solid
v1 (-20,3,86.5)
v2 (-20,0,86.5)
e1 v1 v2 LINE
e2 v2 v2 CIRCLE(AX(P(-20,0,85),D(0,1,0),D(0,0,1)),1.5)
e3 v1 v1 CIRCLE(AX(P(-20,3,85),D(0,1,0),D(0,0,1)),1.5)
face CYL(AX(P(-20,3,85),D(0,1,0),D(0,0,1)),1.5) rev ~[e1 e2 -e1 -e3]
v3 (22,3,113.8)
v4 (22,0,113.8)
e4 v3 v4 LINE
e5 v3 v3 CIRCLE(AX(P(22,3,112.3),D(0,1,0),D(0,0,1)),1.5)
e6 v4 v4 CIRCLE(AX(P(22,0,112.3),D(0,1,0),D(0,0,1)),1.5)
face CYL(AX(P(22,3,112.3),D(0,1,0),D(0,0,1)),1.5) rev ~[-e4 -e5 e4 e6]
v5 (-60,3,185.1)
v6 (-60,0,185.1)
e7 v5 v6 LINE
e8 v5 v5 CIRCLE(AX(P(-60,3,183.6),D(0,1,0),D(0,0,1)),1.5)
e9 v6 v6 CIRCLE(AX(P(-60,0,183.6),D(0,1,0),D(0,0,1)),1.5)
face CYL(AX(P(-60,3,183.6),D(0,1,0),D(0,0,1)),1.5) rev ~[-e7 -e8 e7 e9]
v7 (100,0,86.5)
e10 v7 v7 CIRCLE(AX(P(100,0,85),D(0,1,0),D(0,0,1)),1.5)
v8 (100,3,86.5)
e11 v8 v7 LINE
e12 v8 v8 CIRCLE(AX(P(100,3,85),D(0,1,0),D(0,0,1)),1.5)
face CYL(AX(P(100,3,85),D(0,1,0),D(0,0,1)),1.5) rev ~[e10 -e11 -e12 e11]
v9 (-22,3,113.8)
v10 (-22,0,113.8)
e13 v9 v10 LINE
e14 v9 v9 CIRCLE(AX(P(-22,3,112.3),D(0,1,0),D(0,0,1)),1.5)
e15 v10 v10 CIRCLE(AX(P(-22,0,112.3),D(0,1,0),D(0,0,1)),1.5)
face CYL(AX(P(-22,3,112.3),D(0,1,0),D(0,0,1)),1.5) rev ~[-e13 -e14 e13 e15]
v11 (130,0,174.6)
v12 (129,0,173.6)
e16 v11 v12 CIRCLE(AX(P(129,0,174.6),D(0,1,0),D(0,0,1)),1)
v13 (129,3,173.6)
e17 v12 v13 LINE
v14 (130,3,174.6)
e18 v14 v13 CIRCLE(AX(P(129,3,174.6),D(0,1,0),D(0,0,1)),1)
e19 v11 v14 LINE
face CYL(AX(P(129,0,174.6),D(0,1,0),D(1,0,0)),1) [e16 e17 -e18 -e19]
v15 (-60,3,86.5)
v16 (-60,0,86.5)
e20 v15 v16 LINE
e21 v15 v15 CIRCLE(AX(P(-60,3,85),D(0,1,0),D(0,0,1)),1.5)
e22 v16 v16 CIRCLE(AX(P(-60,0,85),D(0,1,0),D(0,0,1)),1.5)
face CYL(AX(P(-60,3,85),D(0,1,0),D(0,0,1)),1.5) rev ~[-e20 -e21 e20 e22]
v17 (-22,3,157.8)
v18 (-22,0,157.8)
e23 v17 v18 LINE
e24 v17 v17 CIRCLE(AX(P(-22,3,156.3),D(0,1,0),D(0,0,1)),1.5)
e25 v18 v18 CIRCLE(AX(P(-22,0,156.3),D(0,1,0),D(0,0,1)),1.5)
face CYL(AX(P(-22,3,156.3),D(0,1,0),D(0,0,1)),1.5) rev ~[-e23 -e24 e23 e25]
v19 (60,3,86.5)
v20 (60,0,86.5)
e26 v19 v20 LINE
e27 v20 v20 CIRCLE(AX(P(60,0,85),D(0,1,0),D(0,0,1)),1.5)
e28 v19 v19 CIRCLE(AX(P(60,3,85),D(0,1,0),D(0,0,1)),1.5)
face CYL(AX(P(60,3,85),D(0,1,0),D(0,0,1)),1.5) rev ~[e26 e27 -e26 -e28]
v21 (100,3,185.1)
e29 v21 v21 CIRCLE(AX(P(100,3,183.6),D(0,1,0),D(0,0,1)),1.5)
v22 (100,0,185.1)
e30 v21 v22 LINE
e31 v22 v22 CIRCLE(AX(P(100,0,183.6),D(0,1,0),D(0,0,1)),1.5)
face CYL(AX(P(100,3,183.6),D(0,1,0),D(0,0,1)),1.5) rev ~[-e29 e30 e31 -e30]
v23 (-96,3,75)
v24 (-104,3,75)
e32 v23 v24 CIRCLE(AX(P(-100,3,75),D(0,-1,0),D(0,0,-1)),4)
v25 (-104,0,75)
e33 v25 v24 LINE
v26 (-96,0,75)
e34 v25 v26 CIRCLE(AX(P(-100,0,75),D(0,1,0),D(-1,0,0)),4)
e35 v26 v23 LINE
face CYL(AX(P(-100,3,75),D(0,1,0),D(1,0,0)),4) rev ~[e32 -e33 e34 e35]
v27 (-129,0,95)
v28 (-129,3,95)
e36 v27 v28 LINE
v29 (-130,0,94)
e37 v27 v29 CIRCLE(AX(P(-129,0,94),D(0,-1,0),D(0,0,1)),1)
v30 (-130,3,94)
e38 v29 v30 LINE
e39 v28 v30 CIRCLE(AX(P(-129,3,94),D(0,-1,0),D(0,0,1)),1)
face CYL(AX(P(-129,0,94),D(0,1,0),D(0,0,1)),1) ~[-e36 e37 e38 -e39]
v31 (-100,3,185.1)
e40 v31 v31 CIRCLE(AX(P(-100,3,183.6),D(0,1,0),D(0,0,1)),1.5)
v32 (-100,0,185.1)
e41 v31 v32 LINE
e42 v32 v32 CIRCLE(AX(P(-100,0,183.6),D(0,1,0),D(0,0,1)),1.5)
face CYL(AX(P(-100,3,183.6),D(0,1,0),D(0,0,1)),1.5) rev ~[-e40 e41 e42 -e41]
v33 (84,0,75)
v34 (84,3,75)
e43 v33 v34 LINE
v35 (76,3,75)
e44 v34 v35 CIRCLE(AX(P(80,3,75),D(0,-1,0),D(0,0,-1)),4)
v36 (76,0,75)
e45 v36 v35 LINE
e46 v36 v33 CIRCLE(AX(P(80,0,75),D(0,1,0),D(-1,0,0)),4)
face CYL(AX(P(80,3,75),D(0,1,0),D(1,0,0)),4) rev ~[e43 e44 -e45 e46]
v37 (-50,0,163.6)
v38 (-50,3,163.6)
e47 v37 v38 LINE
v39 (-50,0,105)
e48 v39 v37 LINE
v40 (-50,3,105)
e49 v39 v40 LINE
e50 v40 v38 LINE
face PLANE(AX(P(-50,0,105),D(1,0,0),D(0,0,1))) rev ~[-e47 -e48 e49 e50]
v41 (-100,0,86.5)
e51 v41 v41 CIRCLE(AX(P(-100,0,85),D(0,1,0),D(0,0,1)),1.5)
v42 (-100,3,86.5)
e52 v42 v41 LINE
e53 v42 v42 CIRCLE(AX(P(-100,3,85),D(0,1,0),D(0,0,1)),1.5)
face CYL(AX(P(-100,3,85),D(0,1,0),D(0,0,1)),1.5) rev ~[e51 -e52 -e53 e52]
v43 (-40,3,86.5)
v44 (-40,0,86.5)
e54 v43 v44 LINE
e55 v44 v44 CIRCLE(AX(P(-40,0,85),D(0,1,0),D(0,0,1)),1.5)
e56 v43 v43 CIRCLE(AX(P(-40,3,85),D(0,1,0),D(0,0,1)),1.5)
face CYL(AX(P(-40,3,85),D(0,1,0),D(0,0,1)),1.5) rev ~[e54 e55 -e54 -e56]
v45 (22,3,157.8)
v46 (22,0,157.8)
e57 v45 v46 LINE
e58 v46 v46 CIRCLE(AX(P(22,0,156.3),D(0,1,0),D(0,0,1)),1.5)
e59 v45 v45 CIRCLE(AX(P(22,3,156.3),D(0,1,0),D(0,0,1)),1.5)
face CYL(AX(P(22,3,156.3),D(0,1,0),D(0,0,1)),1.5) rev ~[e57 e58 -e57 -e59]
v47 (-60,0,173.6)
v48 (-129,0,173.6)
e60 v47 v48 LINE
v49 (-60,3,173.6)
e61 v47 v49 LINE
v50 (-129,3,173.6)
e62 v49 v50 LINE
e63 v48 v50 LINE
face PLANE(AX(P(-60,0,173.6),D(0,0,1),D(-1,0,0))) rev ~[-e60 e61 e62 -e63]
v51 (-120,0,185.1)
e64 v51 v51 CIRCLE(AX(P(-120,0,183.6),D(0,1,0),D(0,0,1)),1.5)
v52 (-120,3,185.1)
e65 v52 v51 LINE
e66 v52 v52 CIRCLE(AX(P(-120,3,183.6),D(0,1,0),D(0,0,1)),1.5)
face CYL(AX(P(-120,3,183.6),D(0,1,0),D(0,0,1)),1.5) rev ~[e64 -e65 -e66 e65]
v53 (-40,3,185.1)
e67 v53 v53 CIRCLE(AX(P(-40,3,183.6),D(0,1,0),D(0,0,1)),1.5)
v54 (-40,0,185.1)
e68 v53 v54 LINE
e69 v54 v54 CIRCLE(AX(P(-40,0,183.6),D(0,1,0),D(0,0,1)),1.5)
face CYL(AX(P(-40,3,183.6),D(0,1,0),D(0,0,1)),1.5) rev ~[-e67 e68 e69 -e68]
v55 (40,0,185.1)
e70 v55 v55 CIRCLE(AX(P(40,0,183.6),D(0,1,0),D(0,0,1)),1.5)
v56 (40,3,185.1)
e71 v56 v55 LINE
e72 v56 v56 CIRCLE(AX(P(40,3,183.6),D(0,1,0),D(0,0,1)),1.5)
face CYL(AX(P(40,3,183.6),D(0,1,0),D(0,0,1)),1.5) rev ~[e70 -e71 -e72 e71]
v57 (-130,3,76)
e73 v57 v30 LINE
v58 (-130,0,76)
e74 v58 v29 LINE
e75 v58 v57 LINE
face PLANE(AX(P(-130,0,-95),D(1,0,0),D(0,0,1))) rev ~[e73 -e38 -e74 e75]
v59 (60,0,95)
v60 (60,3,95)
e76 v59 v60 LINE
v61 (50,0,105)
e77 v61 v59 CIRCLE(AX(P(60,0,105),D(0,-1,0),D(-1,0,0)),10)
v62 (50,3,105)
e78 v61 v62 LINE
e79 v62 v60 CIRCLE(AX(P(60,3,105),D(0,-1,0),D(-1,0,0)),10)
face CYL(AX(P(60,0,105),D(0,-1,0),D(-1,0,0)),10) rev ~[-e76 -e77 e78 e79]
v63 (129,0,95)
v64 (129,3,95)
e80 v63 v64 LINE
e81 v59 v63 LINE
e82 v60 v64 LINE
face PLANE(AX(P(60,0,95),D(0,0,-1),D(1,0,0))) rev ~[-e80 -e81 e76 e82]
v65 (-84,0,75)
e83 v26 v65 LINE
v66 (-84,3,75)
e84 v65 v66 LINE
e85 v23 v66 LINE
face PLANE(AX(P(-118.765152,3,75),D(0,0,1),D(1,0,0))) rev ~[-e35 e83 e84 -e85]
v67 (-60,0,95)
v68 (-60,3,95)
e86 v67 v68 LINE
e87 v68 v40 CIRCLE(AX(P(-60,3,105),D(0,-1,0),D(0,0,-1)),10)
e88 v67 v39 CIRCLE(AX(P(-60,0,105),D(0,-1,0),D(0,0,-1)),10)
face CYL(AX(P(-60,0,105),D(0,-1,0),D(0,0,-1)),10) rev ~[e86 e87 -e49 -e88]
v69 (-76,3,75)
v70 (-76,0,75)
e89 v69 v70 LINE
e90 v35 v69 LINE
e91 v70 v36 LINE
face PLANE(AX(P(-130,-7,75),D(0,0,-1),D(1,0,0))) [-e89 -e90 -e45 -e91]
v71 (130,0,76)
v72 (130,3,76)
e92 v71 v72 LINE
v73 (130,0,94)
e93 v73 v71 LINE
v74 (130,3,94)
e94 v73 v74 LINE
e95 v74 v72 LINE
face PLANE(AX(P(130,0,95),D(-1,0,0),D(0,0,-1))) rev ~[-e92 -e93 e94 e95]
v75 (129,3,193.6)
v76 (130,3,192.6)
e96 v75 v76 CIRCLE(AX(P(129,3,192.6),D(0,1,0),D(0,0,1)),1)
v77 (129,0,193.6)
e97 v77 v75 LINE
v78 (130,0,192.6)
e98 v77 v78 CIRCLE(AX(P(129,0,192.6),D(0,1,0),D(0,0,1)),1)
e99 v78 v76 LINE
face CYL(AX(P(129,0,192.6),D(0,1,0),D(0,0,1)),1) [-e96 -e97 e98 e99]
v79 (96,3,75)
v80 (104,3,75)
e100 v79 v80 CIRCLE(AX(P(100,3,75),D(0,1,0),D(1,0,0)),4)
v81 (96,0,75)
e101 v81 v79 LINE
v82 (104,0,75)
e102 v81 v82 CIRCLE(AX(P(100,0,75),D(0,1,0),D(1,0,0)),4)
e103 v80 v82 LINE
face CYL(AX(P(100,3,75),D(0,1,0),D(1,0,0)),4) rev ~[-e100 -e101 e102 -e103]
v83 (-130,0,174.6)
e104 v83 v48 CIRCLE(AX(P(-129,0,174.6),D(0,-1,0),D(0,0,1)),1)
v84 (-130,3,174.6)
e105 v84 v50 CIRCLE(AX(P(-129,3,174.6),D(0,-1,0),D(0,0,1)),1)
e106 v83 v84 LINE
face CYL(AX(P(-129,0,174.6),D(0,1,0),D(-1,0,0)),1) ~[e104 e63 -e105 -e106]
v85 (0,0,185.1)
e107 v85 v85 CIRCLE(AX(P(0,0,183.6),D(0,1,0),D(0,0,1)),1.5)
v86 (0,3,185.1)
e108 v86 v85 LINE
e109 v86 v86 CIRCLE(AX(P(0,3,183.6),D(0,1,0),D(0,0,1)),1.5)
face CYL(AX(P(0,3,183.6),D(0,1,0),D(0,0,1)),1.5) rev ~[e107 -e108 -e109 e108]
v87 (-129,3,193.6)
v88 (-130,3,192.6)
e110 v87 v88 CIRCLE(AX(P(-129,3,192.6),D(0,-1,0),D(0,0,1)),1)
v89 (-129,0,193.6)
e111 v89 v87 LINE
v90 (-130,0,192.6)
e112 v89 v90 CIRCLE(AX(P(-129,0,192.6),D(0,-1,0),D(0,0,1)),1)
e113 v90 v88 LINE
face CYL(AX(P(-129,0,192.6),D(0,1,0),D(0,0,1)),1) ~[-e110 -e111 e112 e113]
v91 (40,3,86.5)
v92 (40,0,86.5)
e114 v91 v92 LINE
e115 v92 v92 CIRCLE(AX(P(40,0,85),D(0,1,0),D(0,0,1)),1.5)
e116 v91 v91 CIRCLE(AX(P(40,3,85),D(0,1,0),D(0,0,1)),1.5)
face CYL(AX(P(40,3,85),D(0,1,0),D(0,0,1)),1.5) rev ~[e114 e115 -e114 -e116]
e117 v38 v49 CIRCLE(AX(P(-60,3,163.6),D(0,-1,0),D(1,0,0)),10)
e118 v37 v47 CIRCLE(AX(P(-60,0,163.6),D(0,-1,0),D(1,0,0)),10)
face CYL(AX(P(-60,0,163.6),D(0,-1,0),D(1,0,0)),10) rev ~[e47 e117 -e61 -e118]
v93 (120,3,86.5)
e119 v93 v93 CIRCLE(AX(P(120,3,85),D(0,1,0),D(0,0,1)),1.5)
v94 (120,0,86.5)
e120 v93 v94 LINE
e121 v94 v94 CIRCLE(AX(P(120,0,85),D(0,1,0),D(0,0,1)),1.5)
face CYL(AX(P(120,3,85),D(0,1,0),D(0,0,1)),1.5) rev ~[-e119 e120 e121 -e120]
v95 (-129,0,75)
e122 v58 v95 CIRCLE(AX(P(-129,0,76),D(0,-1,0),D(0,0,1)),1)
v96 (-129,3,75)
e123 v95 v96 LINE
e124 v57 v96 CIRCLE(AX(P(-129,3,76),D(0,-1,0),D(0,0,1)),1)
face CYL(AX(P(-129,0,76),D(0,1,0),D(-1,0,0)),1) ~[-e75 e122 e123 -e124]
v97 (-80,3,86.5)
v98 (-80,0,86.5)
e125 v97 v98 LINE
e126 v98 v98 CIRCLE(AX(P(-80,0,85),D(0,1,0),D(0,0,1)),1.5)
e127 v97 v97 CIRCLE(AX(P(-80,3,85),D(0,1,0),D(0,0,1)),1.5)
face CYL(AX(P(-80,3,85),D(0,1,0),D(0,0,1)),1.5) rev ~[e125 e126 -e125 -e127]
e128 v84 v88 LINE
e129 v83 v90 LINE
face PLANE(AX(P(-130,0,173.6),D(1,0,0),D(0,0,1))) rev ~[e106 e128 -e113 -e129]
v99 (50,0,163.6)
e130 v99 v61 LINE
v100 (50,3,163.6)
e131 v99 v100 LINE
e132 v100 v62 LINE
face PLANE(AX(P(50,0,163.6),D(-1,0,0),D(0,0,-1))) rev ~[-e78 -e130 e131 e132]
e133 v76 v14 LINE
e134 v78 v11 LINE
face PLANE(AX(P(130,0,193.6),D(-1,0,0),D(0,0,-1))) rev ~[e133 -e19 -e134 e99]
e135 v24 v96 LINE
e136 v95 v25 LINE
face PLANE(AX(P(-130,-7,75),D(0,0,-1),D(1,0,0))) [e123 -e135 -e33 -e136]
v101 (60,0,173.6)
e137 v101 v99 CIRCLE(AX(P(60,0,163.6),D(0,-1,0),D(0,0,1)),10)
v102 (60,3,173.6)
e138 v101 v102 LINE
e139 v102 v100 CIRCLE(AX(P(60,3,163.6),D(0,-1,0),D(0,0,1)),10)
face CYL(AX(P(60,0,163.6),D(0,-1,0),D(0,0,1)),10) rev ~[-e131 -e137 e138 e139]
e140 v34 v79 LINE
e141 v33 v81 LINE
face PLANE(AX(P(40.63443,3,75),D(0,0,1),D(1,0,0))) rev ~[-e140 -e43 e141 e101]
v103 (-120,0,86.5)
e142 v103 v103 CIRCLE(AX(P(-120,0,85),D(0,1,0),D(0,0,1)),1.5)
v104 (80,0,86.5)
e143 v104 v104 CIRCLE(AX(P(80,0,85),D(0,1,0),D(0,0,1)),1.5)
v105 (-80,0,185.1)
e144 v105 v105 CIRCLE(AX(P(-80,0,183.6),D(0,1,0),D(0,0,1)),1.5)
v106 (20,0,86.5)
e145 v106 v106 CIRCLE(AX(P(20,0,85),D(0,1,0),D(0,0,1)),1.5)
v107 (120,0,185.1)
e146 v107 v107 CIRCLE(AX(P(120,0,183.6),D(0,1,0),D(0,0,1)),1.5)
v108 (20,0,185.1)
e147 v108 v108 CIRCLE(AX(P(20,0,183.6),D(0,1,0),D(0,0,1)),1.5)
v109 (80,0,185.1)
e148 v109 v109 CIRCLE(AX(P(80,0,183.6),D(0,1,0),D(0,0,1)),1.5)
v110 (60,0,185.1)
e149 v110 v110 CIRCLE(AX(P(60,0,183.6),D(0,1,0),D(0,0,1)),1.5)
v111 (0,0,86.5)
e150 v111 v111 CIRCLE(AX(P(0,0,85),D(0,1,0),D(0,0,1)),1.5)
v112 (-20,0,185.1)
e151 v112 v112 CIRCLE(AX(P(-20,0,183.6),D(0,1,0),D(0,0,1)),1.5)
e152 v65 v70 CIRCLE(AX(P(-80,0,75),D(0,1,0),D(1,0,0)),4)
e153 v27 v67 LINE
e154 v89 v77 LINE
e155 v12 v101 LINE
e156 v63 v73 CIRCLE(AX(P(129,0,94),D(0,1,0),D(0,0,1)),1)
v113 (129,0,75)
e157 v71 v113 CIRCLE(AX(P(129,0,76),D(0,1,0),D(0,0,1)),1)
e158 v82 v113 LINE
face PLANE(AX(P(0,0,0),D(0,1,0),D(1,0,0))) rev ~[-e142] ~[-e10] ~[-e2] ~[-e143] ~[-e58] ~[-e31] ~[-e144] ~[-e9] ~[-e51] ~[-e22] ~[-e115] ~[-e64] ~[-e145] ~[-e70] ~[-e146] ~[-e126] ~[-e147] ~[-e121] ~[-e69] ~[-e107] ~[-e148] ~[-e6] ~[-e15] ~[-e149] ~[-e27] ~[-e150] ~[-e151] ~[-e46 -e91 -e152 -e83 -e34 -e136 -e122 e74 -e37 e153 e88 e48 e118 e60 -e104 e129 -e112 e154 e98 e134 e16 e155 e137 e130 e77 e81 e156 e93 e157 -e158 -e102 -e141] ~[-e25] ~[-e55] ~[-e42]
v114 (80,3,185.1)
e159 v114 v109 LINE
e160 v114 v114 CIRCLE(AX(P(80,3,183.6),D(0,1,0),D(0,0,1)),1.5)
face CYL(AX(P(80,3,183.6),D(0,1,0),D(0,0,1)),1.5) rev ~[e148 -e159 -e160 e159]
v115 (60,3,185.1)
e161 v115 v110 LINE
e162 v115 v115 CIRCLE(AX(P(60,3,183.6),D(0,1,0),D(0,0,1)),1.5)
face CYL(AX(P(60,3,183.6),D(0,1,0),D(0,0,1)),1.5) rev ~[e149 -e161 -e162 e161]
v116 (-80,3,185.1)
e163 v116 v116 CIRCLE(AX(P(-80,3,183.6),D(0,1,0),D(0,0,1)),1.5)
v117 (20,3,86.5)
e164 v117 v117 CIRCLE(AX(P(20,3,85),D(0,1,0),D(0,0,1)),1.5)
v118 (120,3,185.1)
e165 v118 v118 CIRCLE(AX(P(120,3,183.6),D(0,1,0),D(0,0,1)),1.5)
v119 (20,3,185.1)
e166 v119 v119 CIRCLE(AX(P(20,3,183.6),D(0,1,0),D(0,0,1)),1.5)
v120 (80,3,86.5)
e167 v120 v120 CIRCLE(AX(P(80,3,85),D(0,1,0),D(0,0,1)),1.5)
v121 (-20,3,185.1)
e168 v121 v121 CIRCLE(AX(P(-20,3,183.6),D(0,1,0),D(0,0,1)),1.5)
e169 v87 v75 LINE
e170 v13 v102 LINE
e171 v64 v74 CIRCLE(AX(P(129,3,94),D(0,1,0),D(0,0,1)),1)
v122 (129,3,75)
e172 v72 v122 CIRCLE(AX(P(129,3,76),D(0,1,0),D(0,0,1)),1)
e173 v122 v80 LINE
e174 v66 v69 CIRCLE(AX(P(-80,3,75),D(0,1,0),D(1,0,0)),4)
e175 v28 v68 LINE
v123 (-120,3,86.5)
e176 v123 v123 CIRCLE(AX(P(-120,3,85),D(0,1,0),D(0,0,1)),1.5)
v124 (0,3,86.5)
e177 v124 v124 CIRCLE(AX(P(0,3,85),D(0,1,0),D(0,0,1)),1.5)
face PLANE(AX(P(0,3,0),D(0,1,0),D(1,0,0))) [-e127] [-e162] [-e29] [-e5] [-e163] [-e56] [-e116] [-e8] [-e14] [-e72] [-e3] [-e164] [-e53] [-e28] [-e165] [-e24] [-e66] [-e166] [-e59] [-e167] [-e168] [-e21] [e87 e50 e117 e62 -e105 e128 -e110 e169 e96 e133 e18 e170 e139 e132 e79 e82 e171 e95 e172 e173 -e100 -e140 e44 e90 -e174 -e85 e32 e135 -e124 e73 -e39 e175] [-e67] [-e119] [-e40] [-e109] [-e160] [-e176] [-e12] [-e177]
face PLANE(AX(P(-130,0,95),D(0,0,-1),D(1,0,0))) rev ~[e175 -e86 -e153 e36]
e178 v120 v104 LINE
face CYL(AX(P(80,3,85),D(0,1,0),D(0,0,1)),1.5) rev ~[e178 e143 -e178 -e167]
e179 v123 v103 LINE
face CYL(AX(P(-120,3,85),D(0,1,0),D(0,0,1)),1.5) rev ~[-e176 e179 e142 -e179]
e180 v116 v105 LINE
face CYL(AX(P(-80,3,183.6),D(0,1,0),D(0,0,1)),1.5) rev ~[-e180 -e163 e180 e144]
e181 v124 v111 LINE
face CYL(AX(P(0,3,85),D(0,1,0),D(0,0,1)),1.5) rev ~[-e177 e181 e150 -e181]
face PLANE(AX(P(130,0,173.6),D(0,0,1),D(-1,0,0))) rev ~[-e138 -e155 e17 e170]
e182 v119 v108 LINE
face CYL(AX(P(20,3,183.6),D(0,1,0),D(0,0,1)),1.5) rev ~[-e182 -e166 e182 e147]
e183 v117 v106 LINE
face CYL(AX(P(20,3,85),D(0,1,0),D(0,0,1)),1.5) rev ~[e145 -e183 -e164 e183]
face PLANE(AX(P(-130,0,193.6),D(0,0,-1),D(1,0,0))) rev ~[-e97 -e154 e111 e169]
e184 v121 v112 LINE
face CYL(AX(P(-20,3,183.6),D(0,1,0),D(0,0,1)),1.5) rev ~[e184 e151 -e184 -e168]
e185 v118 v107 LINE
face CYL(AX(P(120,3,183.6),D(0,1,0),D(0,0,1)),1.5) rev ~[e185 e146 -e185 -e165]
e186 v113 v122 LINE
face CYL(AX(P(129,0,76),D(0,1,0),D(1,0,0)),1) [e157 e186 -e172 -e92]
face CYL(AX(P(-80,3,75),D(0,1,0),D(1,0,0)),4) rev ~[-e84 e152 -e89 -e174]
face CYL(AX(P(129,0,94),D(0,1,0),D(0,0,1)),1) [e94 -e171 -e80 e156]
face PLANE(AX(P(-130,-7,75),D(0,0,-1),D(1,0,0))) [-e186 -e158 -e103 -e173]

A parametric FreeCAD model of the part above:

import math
import FreeCAD as App
import Part
import Sketcher

V = App.Vector
Q = App.Units.Quantity


def edges_at(feature, points):
    """Names of the edges that pass closest to the given points."""
    edges = feature.Shape.Edges
    near = lambda p: min(range(len(edges)), key=lambda i: edges[i].distToShape(Part.Vertex(*p))[0])
    return sorted({f"Edge{near(p) + 1}" for p in points})

doc = App.newDocument("Part")
body = doc.addObject("PartDesign::Body", "Body")

# Sketch on XZ plane
sketch1 = body.newObject("Sketcher::SketchObject", "Sketch")
sketch1.AttachmentSupport = (doc.getObject("XZ_Plane"), [""])
sketch1.MapMode = "FlatFace"
sketch1.addGeometry([
    Part.LineSegment(V(-130, 193.6, 0), V(130, 193.6, 0)),  # 0
    Part.LineSegment(V(130, 193.6, 0), V(130, 173.6, 0)),  # 1
    Part.LineSegment(V(130, 173.6, 0), V(60, 173.6, 0)),  # 2
    Part.ArcOfCircle(Part.Circle(V(60, 163.6, 0), V(0, 0, 1), 10), math.radians(90), math.radians(180)),  # 3
    Part.LineSegment(V(50, 163.6, 0), V(50, 105, 0)),  # 4
    Part.ArcOfCircle(Part.Circle(V(60, 105, 0), V(0, 0, 1), 10), math.radians(180), math.radians(270)),  # 5
    Part.LineSegment(V(60, 95, 0), V(130, 95, 0)),  # 6
    Part.LineSegment(V(130, 95, 0), V(130, -95, 0)),  # 7
    Part.LineSegment(V(130, -95, 0), V(60, -95, 0)),  # 8
    Part.ArcOfCircle(Part.Circle(V(60, -105, 0), V(0, 0, 1), 10), math.radians(90), math.radians(180)),  # 9
    Part.LineSegment(V(50, -105, 0), V(50, -163.6, 0)),  # 10
    Part.ArcOfCircle(Part.Circle(V(60, -163.6, 0), V(0, 0, 1), 10), math.radians(180), math.radians(270)),  # 11
    Part.LineSegment(V(60, -173.6, 0), V(130, -173.6, 0)),  # 12
    Part.LineSegment(V(130, -173.6, 0), V(130, -193.6, 0)),  # 13
    Part.LineSegment(V(130, -193.6, 0), V(-130, -193.6, 0)),  # 14
    Part.LineSegment(V(-130, -193.6, 0), V(-130, -173.6, 0)),  # 15
    Part.LineSegment(V(-130, -173.6, 0), V(-60, -173.6, 0)),  # 16
    Part.ArcOfCircle(Part.Circle(V(-60, -163.6, 0), V(0, 0, 1), 10), math.radians(-90), math.radians(0)),  # 17
    Part.LineSegment(V(-50, -163.6, 0), V(-50, -105, 0)),  # 18
    Part.ArcOfCircle(Part.Circle(V(-60, -105, 0), V(0, 0, 1), 10), math.radians(0), math.radians(90)),  # 19
    Part.LineSegment(V(-60, -95, 0), V(-130, -95, 0)),  # 20
    Part.LineSegment(V(-130, -95, 0), V(-130, 95, 0)),  # 21
    Part.LineSegment(V(-130, 95, 0), V(-60, 95, 0)),  # 22
    Part.ArcOfCircle(Part.Circle(V(-60, 105, 0), V(0, 0, 1), 10), math.radians(-90), math.radians(0)),  # 23
    Part.LineSegment(V(-50, 105, 0), V(-50, 163.6, 0)),  # 24
    Part.ArcOfCircle(Part.Circle(V(-60, 163.6, 0), V(0, 0, 1), 10), math.radians(0), math.radians(90)),  # 25
    Part.LineSegment(V(-60, 173.6, 0), V(-130, 173.6, 0)),  # 26
    Part.LineSegment(V(-130, 173.6, 0), V(-130, 193.6, 0)),  # 27
], False)
sketch1.addConstraint([
    Sketcher.Constraint("Coincident", 0, 2, 1, 1),
    Sketcher.Constraint("Coincident", 1, 2, 2, 1),
    Sketcher.Constraint("Tangent", 2, 2, 3, 1),
    Sketcher.Constraint("Tangent", 3, 2, 4, 1),
    Sketcher.Constraint("Tangent", 4, 2, 5, 1),
    Sketcher.Constraint("Tangent", 5, 2, 6, 1),
    Sketcher.Constraint("Coincident", 6, 2, 7, 1),
    Sketcher.Constraint("Coincident", 7, 2, 8, 1),
    Sketcher.Constraint("Tangent", 8, 2, 9, 1),
    Sketcher.Constraint("Tangent", 9, 2, 10, 1),
    Sketcher.Constraint("Tangent", 10, 2, 11, 1),
    Sketcher.Constraint("Tangent", 11, 2, 12, 1),
    Sketcher.Constraint("Coincident", 12, 2, 13, 1),
    Sketcher.Constraint("Coincident", 13, 2, 14, 1),
    Sketcher.Constraint("Coincident", 14, 2, 15, 1),
    Sketcher.Constraint("Coincident", 15, 2, 16, 1),
    Sketcher.Constraint("Tangent", 16, 2, 17, 1),
    Sketcher.Constraint("Tangent", 17, 2, 18, 1),
    Sketcher.Constraint("Tangent", 18, 2, 19, 1),
    Sketcher.Constraint("Tangent", 19, 2, 20, 1),
    Sketcher.Constraint("Coincident", 20, 2, 21, 1),
    Sketcher.Constraint("Coincident", 21, 2, 22, 1),
    Sketcher.Constraint("Tangent", 22, 2, 23, 1),
    Sketcher.Constraint("Tangent", 23, 2, 24, 1),
    Sketcher.Constraint("Tangent", 24, 2, 25, 1),
    Sketcher.Constraint("Tangent", 25, 2, 26, 1),
    Sketcher.Constraint("Coincident", 26, 2, 27, 1),
    Sketcher.Constraint("Coincident", 27, 2, 0, 1),
    Sketcher.Constraint("Horizontal", 0),
    Sketcher.Constraint("Vertical", 1),
    Sketcher.Constraint("Horizontal", 2),
    Sketcher.Constraint("Vertical", 4),
    Sketcher.Constraint("Horizontal", 6),
    Sketcher.Constraint("Vertical", 7),
    Sketcher.Constraint("Horizontal", 8),
    Sketcher.Constraint("Vertical", 10),
    Sketcher.Constraint("Horizontal", 12),
    Sketcher.Constraint("Vertical", 13),
    Sketcher.Constraint("Horizontal", 14),
    Sketcher.Constraint("Vertical", 15),
    Sketcher.Constraint("Horizontal", 16),
    Sketcher.Constraint("Vertical", 18),
    Sketcher.Constraint("Horizontal", 20),
    Sketcher.Constraint("Vertical", 21),
    Sketcher.Constraint("Horizontal", 22),
    Sketcher.Constraint("Vertical", 24),
    Sketcher.Constraint("Horizontal", 26),
    Sketcher.Constraint("Vertical", 27),
    Sketcher.Constraint("Equal", 3, 5),
    Sketcher.Constraint("Equal", 5, 9),
    Sketcher.Constraint("Equal", 9, 11),
    Sketcher.Constraint("Equal", 11, 17),
    Sketcher.Constraint("Equal", 17, 19),
    Sketcher.Constraint("Equal", 19, 23),
    Sketcher.Constraint("Equal", 23, 25),
    Sketcher.Constraint("Symmetric", 3, 3, 17, 3, -1, 1),
    Sketcher.Constraint("Symmetric", 9, 3, 23, 3, -1, 1),
    Sketcher.Constraint("Symmetric", 0, 2, 14, 2, -1, 1),
    Sketcher.Constraint("Symmetric", 6, 2, 20, 2, -1, 1),
    Sketcher.Constraint("Symmetric", 12, 2, 26, 2, -1, 1),
    Sketcher.Constraint("Symmetric", 11, 3, 17, 3, -2),
    Sketcher.Constraint("Horizontal", 9, 3, 19, 3),
    Sketcher.Constraint("Vertical", 1, 2, 6, 2),
    Sketcher.Constraint("Vertical", 7, 2, 12, 2),
    Sketcher.Constraint("Radius", 3, Q("10 mm")),
    Sketcher.Constraint("DistanceX", 0, 1, 0, 2, Q("260 mm")),
    Sketcher.Constraint("DistanceX", 2, 2, 2, 1, Q("70 mm")),
    Sketcher.Constraint("DistanceY", 1, 2, 1, 1, Q("20 mm")),
    Sketcher.Constraint("DistanceY", 7, 2, 7, 1, Q("190 mm")),
    Sketcher.Constraint("DistanceY", 4, 2, 4, 1, Q("58.6 mm")),
])
pad1 = body.newObject("PartDesign::Pad", "Pad")
pad1.Profile = sketch1
pad1.Length = 3
pad1.Reversed = True

# Sketch on XZ plane
sketch2 = body.newObject("Sketcher::SketchObject", "Sketch001")
sketch2.AttachmentSupport = (doc.getObject("XZ_Plane"), [""])
sketch2.MapMode = "FlatFace"
sketch2.AttachmentOffset = App.Placement(V(0, 0, 7), App.Rotation())
sketch2.addGeometry([
    Part.LineSegment(V(-130, -95, 0), V(-130, 75, 0)),  # 0
    Part.LineSegment(V(-130, 75, 0), V(130, 75, 0)),  # 1
    Part.LineSegment(V(130, 75, 0), V(130, -95, 0)),  # 2
    Part.LineSegment(V(130, -95, 0), V(60, -95, 0)),  # 3
    Part.ArcOfCircle(Part.Circle(V(60, -105, 0), V(0, 0, 1), 10), math.radians(90), math.radians(180)),  # 4
    Part.LineSegment(V(50, -105, 0), V(50, -163.6, 0)),  # 5
    Part.ArcOfCircle(Part.Circle(V(60, -163.6, 0), V(0, 0, 1), 10), math.radians(180), math.radians(270)),  # 6
    Part.LineSegment(V(60, -173.6, 0), V(130, -173.6, 0)),  # 7
    Part.LineSegment(V(130, -173.6, 0), V(130, -193.6, 0)),  # 8
    Part.LineSegment(V(130, -193.6, 0), V(-130, -193.6, 0)),  # 9
    Part.LineSegment(V(-130, -193.6, 0), V(-130, -173.6, 0)),  # 10
    Part.LineSegment(V(-130, -173.6, 0), V(-60, -173.6, 0)),  # 11
    Part.ArcOfCircle(Part.Circle(V(-60, -163.6, 0), V(0, 0, 1), 10), math.radians(-90), math.radians(0)),  # 12
    Part.LineSegment(V(-50, -163.6, 0), V(-50, -105, 0)),  # 13
    Part.ArcOfCircle(Part.Circle(V(-60, -105, 0), V(0, 0, 1), 10), math.radians(0), math.radians(90)),  # 14
    Part.LineSegment(V(-60, -95, 0), V(-130, -95, 0)),  # 15
], False)
sketch2.addConstraint([
    Sketcher.Constraint("Coincident", 0, 2, 1, 1),
    Sketcher.Constraint("Coincident", 1, 2, 2, 1),
    Sketcher.Constraint("Coincident", 2, 2, 3, 1),
    Sketcher.Constraint("Tangent", 3, 2, 4, 1),
    Sketcher.Constraint("Tangent", 4, 2, 5, 1),
    Sketcher.Constraint("Tangent", 5, 2, 6, 1),
    Sketcher.Constraint("Tangent", 6, 2, 7, 1),
    Sketcher.Constraint("Coincident", 7, 2, 8, 1),
    Sketcher.Constraint("Coincident", 8, 2, 9, 1),
    Sketcher.Constraint("Coincident", 9, 2, 10, 1),
    Sketcher.Constraint("Coincident", 10, 2, 11, 1),
    Sketcher.Constraint("Tangent", 11, 2, 12, 1),
    Sketcher.Constraint("Tangent", 12, 2, 13, 1),
    Sketcher.Constraint("Tangent", 13, 2, 14, 1),
    Sketcher.Constraint("Tangent", 14, 2, 15, 1),
    Sketcher.Constraint("Coincident", 15, 2, 0, 1),
    Sketcher.Constraint("Vertical", 0),
    Sketcher.Constraint("Horizontal", 1),
    Sketcher.Constraint("Vertical", 2),
    Sketcher.Constraint("Horizontal", 3),
    Sketcher.Constraint("Vertical", 5),
    Sketcher.Constraint("Horizontal", 7),
    Sketcher.Constraint("Vertical", 8),
    Sketcher.Constraint("Horizontal", 9),
    Sketcher.Constraint("Vertical", 10),
    Sketcher.Constraint("Horizontal", 11),
    Sketcher.Constraint("Vertical", 13),
    Sketcher.Constraint("Horizontal", 15),
    Sketcher.Constraint("Equal", 4, 6),
    Sketcher.Constraint("Equal", 6, 12),
    Sketcher.Constraint("Equal", 12, 14),
    Sketcher.Constraint("Symmetric", 6, 3, 12, 3, -2),
    Sketcher.Constraint("Symmetric", 2, 2, 15, 2, -2),
    Sketcher.Constraint("Vertical", 2, 2, 7, 2),
    Sketcher.Constraint("Vertical", 0, 2, 9, 2),
    Sketcher.Constraint("Radius", 4, Q("10 mm")),
    Sketcher.Constraint("DistanceX", 1, 1, 1, 2, Q("260 mm")),
    Sketcher.Constraint("DistanceX", 3, 2, 3, 1, Q("70 mm")),
    Sketcher.Constraint("DistanceY", 0, 1, 0, 2, Q("170 mm")),
    Sketcher.Constraint("DistanceY", 8, 2, 8, 1, Q("20 mm")),
    Sketcher.Constraint("DistanceY", 5, 2, 5, 1, Q("58.6 mm")),
    Sketcher.Constraint("DistanceY", 4, 3, -1, 1, Q("105 mm")),
])
pocket1 = body.newObject("PartDesign::Pocket", "Pocket")
pocket1.Profile = sketch2
pocket1.Length = 10

# Sketch on XZ plane
sketch3 = body.newObject("Sketcher::SketchObject", "Sketch002")
sketch3.AttachmentSupport = (doc.getObject("XZ_Plane"), [""])
sketch3.MapMode = "FlatFace"
sketch3.AttachmentOffset = App.Placement(V(0, 0, -3), App.Rotation())
sketch3.addGeometry([
    Part.LineSegment(V(80, 35, 0), V(80, 75, 0)),  # 0
    Part.LineSegment(V(80, 75, 0), V(100, 75, 0)),  # 1
    Part.LineSegment(V(100, 75, 0), V(100, 35, 0)),  # 2
    Part.LineSegment(V(100, 35, 0), V(80, 35, 0)),  # 3
    Part.LineSegment(V(-100, 35, 0), V(-100, 75, 0)),  # 4
    Part.LineSegment(V(-100, 75, 0), V(-80, 75, 0)),  # 5
    Part.LineSegment(V(-80, 75, 0), V(-80, 35, 0)),  # 6
    Part.LineSegment(V(-80, 35, 0), V(-100, 35, 0)),  # 7
], False)
sketch3.addConstraint([
    Sketcher.Constraint("Coincident", 0, 2, 1, 1),
    Sketcher.Constraint("Coincident", 1, 2, 2, 1),
    Sketcher.Constraint("Coincident", 2, 2, 3, 1),
    Sketcher.Constraint("Coincident", 3, 2, 0, 1),
    Sketcher.Constraint("Coincident", 4, 2, 5, 1),
    Sketcher.Constraint("Coincident", 5, 2, 6, 1),
    Sketcher.Constraint("Coincident", 6, 2, 7, 1),
    Sketcher.Constraint("Coincident", 7, 2, 4, 1),
    Sketcher.Constraint("Vertical", 0),
    Sketcher.Constraint("Horizontal", 1),
    Sketcher.Constraint("Vertical", 2),
    Sketcher.Constraint("Horizontal", 3),
    Sketcher.Constraint("Vertical", 4),
    Sketcher.Constraint("Horizontal", 5),
    Sketcher.Constraint("Vertical", 6),
    Sketcher.Constraint("Horizontal", 7),
    Sketcher.Constraint("Symmetric", 1, 2, 4, 2, -2),
    Sketcher.Constraint("Symmetric", 3, 2, 6, 2, -2),
    Sketcher.Constraint("DistanceX", 1, 1, 1, 2, Q("20 mm")),
    Sketcher.Constraint("DistanceY", 0, 1, 0, 2, Q("40 mm")),
    Sketcher.Constraint("DistanceX", -1, 1, 0, 2, Q("80 mm")),
    Sketcher.Constraint("DistanceY", -1, 1, 0, 2, Q("75 mm")),
])
pad2 = body.newObject("PartDesign::Pad", "Pad001")
pad2.Profile = sketch3
pad2.Length = 3
doc.recompute()

fillet = body.newObject("PartDesign::Fillet", "Fillet")
fillet.Base = (pad2, edges_at(pad2, [
    (-130, 1.5, 75),
    (-100, 1.5, 35),
    (-80, 1.5, 35),
    (-130, 1.5, 193.6),
    (-130, 1.5, 173.6),
    (-130, 1.5, 95),
]))
fillet.Radius = 1
doc.recompute()

fillet2 = body.newObject("PartDesign::Fillet", "Fillet001")
fillet2.Base = (fillet, edges_at(fillet, [
    (130, 1.5, 75),
    (80, 1.5, 35),
    (100, 1.5, 35),
    (130, 1.5, 95),
    (130, 1.5, 173.6),
    (130, 1.5, 193.6),
]))
fillet2.Radius = 1

# Sketch on XZ plane
sketch4 = body.newObject("Sketcher::SketchObject", "Sketch003")
sketch4.AttachmentSupport = (doc.getObject("XZ_Plane"), [""])
sketch4.MapMode = "FlatFace"
sketch4.AttachmentOffset = App.Placement(V(0, 0, -3), App.Rotation())
sketch4.addGeometry([
    Part.Circle(V(22, 112.3, 0), V(0, 0, 1), 1.5),
    Part.Circle(V(-22, 112.3, 0), V(0, 0, 1), 1.5),
    Part.Circle(V(-22, 156.3, 0), V(0, 0, 1), 1.5),
    Part.Circle(V(22, 156.3, 0), V(0, 0, 1), 1.5),
], False)
sketch4.addConstraint([
    Sketcher.Constraint("Equal", 0, 1),
    Sketcher.Constraint("Equal", 1, 2),
    Sketcher.Constraint("Equal", 2, 3),
    Sketcher.Constraint("Symmetric", 0, 3, 1, 3, -2),
    Sketcher.Constraint("Symmetric", 2, 3, 3, 3, -2),
    Sketcher.Constraint("Vertical", 1, 3, 2, 3),
    Sketcher.Constraint("Diameter", 0, Q("3 mm")),
    Sketcher.Constraint("DistanceX", -1, 1, 0, 3, Q("22 mm")),
    Sketcher.Constraint("DistanceY", 1, 3, 2, 3, Q("44 mm")),
    Sketcher.Constraint("DistanceY", -1, 1, 0, 3, Q("112.3 mm")),
])
pocket2 = body.newObject("PartDesign::Pocket", "Pocket001")
pocket2.Profile = sketch4
pocket2.Length = 10
pocket2.Reversed = True

# Sketch on XZ plane
sketch5 = body.newObject("Sketcher::SketchObject", "Sketch004")
sketch5.AttachmentSupport = (doc.getObject("XZ_Plane"), [""])
sketch5.MapMode = "FlatFace"
sketch5.AttachmentOffset = App.Placement(V(0, 0, -3), App.Rotation())
sketch5.addGeometry([
    Part.Circle(V(120, 85, 0), V(0, 0, 1), 1.5),  # 0
    Part.Circle(V(80, 85, 0), V(0, 0, 1), 1.5),  # 1
    Part.Circle(V(100, 85, 0), V(0, 0, 1), 1.5),  # 2
    Part.Circle(V(60, 85, 0), V(0, 0, 1), 1.5),  # 3
    Part.Circle(V(40, 85, 0), V(0, 0, 1), 1.5),  # 4
    Part.Circle(V(20, 85, 0), V(0, 0, 1), 1.5),  # 5
    Part.Circle(V(0, 85, 0), V(0, 0, 1), 1.5),  # 6
    Part.Circle(V(-20, 85, 0), V(0, 0, 1), 1.5),  # 7
    Part.Circle(V(-40, 85, 0), V(0, 0, 1), 1.5),  # 8
    Part.Circle(V(-60, 85, 0), V(0, 0, 1), 1.5),  # 9
    Part.Circle(V(-80, 85, 0), V(0, 0, 1), 1.5),  # 10
    Part.Circle(V(-100, 85, 0), V(0, 0, 1), 1.5),  # 11
    Part.Circle(V(-120, 85, 0), V(0, 0, 1), 1.5),  # 12
    Part.Circle(V(-100, 183.6, 0), V(0, 0, 1), 1.5),  # 13
    Part.Circle(V(-120, 183.6, 0), V(0, 0, 1), 1.5),  # 14
    Part.Circle(V(-80, 183.6, 0), V(0, 0, 1), 1.5),  # 15
    Part.Circle(V(-60, 183.6, 0), V(0, 0, 1), 1.5),  # 16
    Part.Circle(V(-40, 183.6, 0), V(0, 0, 1), 1.5),  # 17
    Part.Circle(V(-20, 183.6, 0), V(0, 0, 1), 1.5),  # 18
    Part.Circle(V(0, 183.6, 0), V(0, 0, 1), 1.5),  # 19
    Part.Circle(V(20, 183.6, 0), V(0, 0, 1), 1.5),  # 20
    Part.Circle(V(40, 183.6, 0), V(0, 0, 1), 1.5),  # 21
    Part.Circle(V(60, 183.6, 0), V(0, 0, 1), 1.5),  # 22
    Part.Circle(V(80, 183.6, 0), V(0, 0, 1), 1.5),  # 23
    Part.Circle(V(100, 183.6, 0), V(0, 0, 1), 1.5),  # 24
    Part.Circle(V(120, 183.6, 0), V(0, 0, 1), 1.5),  # 25
], False)
sketch5.addConstraint([
    Sketcher.Constraint("Equal", 0, 1),
    Sketcher.Constraint("Equal", 1, 2),
    Sketcher.Constraint("Equal", 2, 3),
    Sketcher.Constraint("Equal", 3, 4),
    Sketcher.Constraint("Equal", 4, 5),
    Sketcher.Constraint("Equal", 5, 6),
    Sketcher.Constraint("Equal", 6, 7),
    Sketcher.Constraint("Equal", 7, 8),
    Sketcher.Constraint("Equal", 8, 9),
    Sketcher.Constraint("Equal", 9, 10),
    Sketcher.Constraint("Equal", 10, 11),
    Sketcher.Constraint("Equal", 11, 12),
    Sketcher.Constraint("Equal", 12, 13),
    Sketcher.Constraint("Equal", 13, 14),
    Sketcher.Constraint("Equal", 14, 15),
    Sketcher.Constraint("Equal", 15, 16),
    Sketcher.Constraint("Equal", 16, 17),
    Sketcher.Constraint("Equal", 17, 18),
    Sketcher.Constraint("Equal", 18, 19),
    Sketcher.Constraint("Equal", 19, 20),
    Sketcher.Constraint("Equal", 20, 21),
    Sketcher.Constraint("Equal", 21, 22),
    Sketcher.Constraint("Equal", 22, 23),
    Sketcher.Constraint("Equal", 23, 24),
    Sketcher.Constraint("Equal", 24, 25),
    Sketcher.Constraint("Symmetric", 5, 3, 7, 3, -2),
    Sketcher.Constraint("Symmetric", 4, 3, 8, 3, -2),
    Sketcher.Constraint("Symmetric", 3, 3, 9, 3, -2),
    Sketcher.Constraint("Symmetric", 1, 3, 10, 3, -2),
    Sketcher.Constraint("Symmetric", 2, 3, 11, 3, -2),
    Sketcher.Constraint("Symmetric", 0, 3, 12, 3, -2),
    Sketcher.Constraint("Symmetric", 18, 3, 20, 3, -2),
    Sketcher.Constraint("Symmetric", 17, 3, 21, 3, -2),
    Sketcher.Constraint("Symmetric", 16, 3, 22, 3, -2),
    Sketcher.Constraint("Symmetric", 15, 3, 23, 3, -2),
    Sketcher.Constraint("Symmetric", 13, 3, 24, 3, -2),
    Sketcher.Constraint("Symmetric", 14, 3, 25, 3, -2),
    Sketcher.Constraint("PointOnObject", 6, 3, -2),
    Sketcher.Constraint("PointOnObject", 19, 3, -2),
    Sketcher.Constraint("Horizontal", 0, 3, 1, 3),
    Sketcher.Constraint("Horizontal", 1, 3, 2, 3),
    Sketcher.Constraint("Horizontal", 2, 3, 3, 3),
    Sketcher.Constraint("Horizontal", 3, 3, 4, 3),
    Sketcher.Constraint("Horizontal", 4, 3, 5, 3),
    Sketcher.Constraint("Horizontal", 5, 3, 6, 3),
    Sketcher.Constraint("Horizontal", 13, 3, 14, 3),
    Sketcher.Constraint("Horizontal", 14, 3, 15, 3),
    Sketcher.Constraint("Horizontal", 15, 3, 16, 3),
    Sketcher.Constraint("Horizontal", 16, 3, 17, 3),
    Sketcher.Constraint("Horizontal", 17, 3, 18, 3),
    Sketcher.Constraint("Horizontal", 18, 3, 19, 3),
    Sketcher.Constraint("Vertical", 11, 3, 13, 3),
    Sketcher.Constraint("Vertical", 12, 3, 14, 3),
    Sketcher.Constraint("Vertical", 10, 3, 15, 3),
    Sketcher.Constraint("Vertical", 9, 3, 16, 3),
    Sketcher.Constraint("Vertical", 8, 3, 17, 3),
    Sketcher.Constraint("Vertical", 7, 3, 18, 3),
    Sketcher.Constraint("Diameter", 0, Q("3 mm")),
    Sketcher.Constraint("DistanceX", -1, 1, 0, 3, Q("120 mm")),
    Sketcher.Constraint("DistanceY", -1, 1, 0, 3, Q("85 mm")),
    Sketcher.Constraint("DistanceX", -1, 1, 1, 3, Q("80 mm")),
    Sketcher.Constraint("DistanceX", -1, 1, 2, 3, Q("100 mm")),
    Sketcher.Constraint("DistanceX", -1, 1, 3, 3, Q("60 mm")),
    Sketcher.Constraint("DistanceX", -1, 1, 4, 3, Q("40 mm")),
    Sketcher.Constraint("DistanceX", -1, 1, 5, 3, Q("20 mm")),
    Sketcher.Constraint("DistanceY", -1, 1, 13, 3, Q("183.6 mm")),
])
pocket3 = body.newObject("PartDesign::Pocket", "Pocket002")
pocket3.Profile = sketch5
pocket3.Length = 10
pocket3.Reversed = True

# Sketch on XZ plane
sketch6 = body.newObject("Sketcher::SketchObject", "Sketch005")
sketch6.AttachmentSupport = (doc.getObject("XZ_Plane"), [""])
sketch6.MapMode = "FlatFace"
sketch6.addGeometry([
    Part.Circle(V(-90, 40, 0), V(0, 0, 1), 1.5),
    Part.Circle(V(-90, 60, 0), V(0, 0, 1), 1.5),
    Part.Circle(V(90, 60, 0), V(0, 0, 1), 1.5),
    Part.Circle(V(90, 40, 0), V(0, 0, 1), 1.5),
], False)
sketch6.addConstraint([
    Sketcher.Constraint("Equal", 0, 1),
    Sketcher.Constraint("Equal", 1, 2),
    Sketcher.Constraint("Equal", 2, 3),
    Sketcher.Constraint("Symmetric", 1, 3, 2, 3, -2),
    Sketcher.Constraint("Symmetric", 0, 3, 3, 3, -2),
    Sketcher.Constraint("Vertical", 0, 3, 1, 3),
    Sketcher.Constraint("Diameter", 0, Q("3 mm")),
    Sketcher.Constraint("DistanceX", 0, 3, -1, 1, Q("90 mm")),
    Sketcher.Constraint("DistanceY", -1, 1, 0, 3, Q("40 mm")),
    Sketcher.Constraint("DistanceY", -1, 1, 1, 3, Q("60 mm")),
])
pocket4 = body.newObject("PartDesign::Pocket", "Pocket003")
pocket4.Profile = sketch6
pocket4.Type = "ThroughAll"

# Sketch on XZ plane
sketch7 = body.newObject("Sketcher::SketchObject", "Sketch006")
sketch7.AttachmentSupport = (doc.getObject("XZ_Plane"), [""])
sketch7.MapMode = "FlatFace"
sketch7.AttachmentOffset = App.Placement(V(0, 0, -3), App.Rotation())
sketch7.addGeometry([
    Part.Circle(V(-100, 75, 0), V(0, 0, 1), 4),
    Part.Circle(V(-80, 75, 0), V(0, 0, 1), 4),
    Part.Circle(V(80, 75, 0), V(0, 0, 1), 4),
    Part.Circle(V(100, 75, 0), V(0, 0, 1), 4),
], False)
sketch7.addConstraint([
    Sketcher.Constraint("Equal", 0, 1),
    Sketcher.Constraint("Equal", 1, 2),
    Sketcher.Constraint("Equal", 2, 3),
    Sketcher.Constraint("Symmetric", 1, 3, 2, 3, -2),
    Sketcher.Constraint("Symmetric", 0, 3, 3, 3, -2),
    Sketcher.Constraint("Horizontal", 0, 3, 1, 3),
    Sketcher.Constraint("Diameter", 0, Q("8 mm")),
    Sketcher.Constraint("DistanceX", 0, 3, -1, 1, Q("100 mm")),
    Sketcher.Constraint("DistanceY", -1, 1, 0, 3, Q("75 mm")),
    Sketcher.Constraint("DistanceX", 1, 3, -1, 1, Q("80 mm")),
])
pocket5 = body.newObject("PartDesign::Pocket", "Pocket004")
pocket5.Profile = sketch7
pocket5.Type = "ThroughAll"
pocket5.Reversed = True

# Sketch on XZ plane
sketch8 = body.newObject("Sketcher::SketchObject", "Sketch007")
sketch8.AttachmentSupport = (doc.getObject("XZ_Plane"), [""])
sketch8.MapMode = "FlatFace"
sketch8.AttachmentOffset = App.Placement(V(0, 0, -3), App.Rotation())
sketch8.addGeometry([
    Part.LineSegment(V(-118.765152, -74.999998, 0), V(-118.765152, 75, 0)),
    Part.LineSegment(V(-118.765152, 75, 0), V(-77.885152, 75, 0)),
    Part.LineSegment(V(-77.885152, 75, 0), V(-77.885152, -74.999998, 0)),
    Part.LineSegment(V(-77.885152, -74.999998, 0), V(-118.765152, -74.999998, 0)),
], False)
sketch8.addConstraint([
    Sketcher.Constraint("Coincident", 0, 2, 1, 1),
    Sketcher.Constraint("Coincident", 1, 2, 2, 1),
    Sketcher.Constraint("Coincident", 2, 2, 3, 1),
    Sketcher.Constraint("Coincident", 3, 2, 0, 1),
    Sketcher.Constraint("Vertical", 0),
    Sketcher.Constraint("Horizontal", 1),
    Sketcher.Constraint("Vertical", 2),
    Sketcher.Constraint("Horizontal", 3),
    Sketcher.Constraint("DistanceY", -1, 1, 0, 2, Q("75 mm")),
    Sketcher.Constraint("DistanceX", 1, 1, 1, 2, Q("40.88 mm")),
    Sketcher.Constraint("DistanceY", 0, 1, 0, 2, Q("149.999998 mm")),
    Sketcher.Constraint("DistanceX", 0, 2, -1, 1, Q("118.765152 mm")),
])
pocket6 = body.newObject("PartDesign::Pocket", "Pocket005")
pocket6.Profile = sketch8
pocket6.Length = 10
pocket6.Reversed = True

# Sketch on XZ plane
sketch9 = body.newObject("Sketcher::SketchObject", "Sketch008")
sketch9.AttachmentSupport = (doc.getObject("XZ_Plane"), [""])
sketch9.MapMode = "FlatFace"
sketch9.AttachmentOffset = App.Placement(V(0, 0, -3), App.Rotation())
sketch9.addGeometry([
    Part.LineSegment(V(40.63443, 19.122557, 0), V(40.63443, 75, 0)),
    Part.LineSegment(V(40.63443, 75, 0), V(116.5, 75, 0)),
    Part.LineSegment(V(116.5, 75, 0), V(116.5, 19.122557, 0)),
    Part.LineSegment(V(116.5, 19.122557, 0), V(40.63443, 19.122557, 0)),
], False)
sketch9.addConstraint([
    Sketcher.Constraint("Coincident", 0, 2, 1, 1),
    Sketcher.Constraint("Coincident", 1, 2, 2, 1),
    Sketcher.Constraint("Coincident", 2, 2, 3, 1),
    Sketcher.Constraint("Coincident", 3, 2, 0, 1),
    Sketcher.Constraint("Vertical", 0),
    Sketcher.Constraint("Horizontal", 1),
    Sketcher.Constraint("Vertical", 2),
    Sketcher.Constraint("Horizontal", 3),
    Sketcher.Constraint("DistanceY", -1, 1, 0, 2, Q("75 mm")),
    Sketcher.Constraint("DistanceX", -1, 1, 1, 2, Q("116.5 mm")),
    Sketcher.Constraint("DistanceX", 1, 1, 1, 2, Q("75.86557 mm")),
    Sketcher.Constraint("DistanceY", 0, 1, 0, 2, Q("55.877443 mm")),
])
pocket7 = body.newObject("PartDesign::Pocket", "Pocket006")
pocket7.Profile = sketch9
pocket7.Length = 10
pocket7.Reversed = True

doc.recompute()
